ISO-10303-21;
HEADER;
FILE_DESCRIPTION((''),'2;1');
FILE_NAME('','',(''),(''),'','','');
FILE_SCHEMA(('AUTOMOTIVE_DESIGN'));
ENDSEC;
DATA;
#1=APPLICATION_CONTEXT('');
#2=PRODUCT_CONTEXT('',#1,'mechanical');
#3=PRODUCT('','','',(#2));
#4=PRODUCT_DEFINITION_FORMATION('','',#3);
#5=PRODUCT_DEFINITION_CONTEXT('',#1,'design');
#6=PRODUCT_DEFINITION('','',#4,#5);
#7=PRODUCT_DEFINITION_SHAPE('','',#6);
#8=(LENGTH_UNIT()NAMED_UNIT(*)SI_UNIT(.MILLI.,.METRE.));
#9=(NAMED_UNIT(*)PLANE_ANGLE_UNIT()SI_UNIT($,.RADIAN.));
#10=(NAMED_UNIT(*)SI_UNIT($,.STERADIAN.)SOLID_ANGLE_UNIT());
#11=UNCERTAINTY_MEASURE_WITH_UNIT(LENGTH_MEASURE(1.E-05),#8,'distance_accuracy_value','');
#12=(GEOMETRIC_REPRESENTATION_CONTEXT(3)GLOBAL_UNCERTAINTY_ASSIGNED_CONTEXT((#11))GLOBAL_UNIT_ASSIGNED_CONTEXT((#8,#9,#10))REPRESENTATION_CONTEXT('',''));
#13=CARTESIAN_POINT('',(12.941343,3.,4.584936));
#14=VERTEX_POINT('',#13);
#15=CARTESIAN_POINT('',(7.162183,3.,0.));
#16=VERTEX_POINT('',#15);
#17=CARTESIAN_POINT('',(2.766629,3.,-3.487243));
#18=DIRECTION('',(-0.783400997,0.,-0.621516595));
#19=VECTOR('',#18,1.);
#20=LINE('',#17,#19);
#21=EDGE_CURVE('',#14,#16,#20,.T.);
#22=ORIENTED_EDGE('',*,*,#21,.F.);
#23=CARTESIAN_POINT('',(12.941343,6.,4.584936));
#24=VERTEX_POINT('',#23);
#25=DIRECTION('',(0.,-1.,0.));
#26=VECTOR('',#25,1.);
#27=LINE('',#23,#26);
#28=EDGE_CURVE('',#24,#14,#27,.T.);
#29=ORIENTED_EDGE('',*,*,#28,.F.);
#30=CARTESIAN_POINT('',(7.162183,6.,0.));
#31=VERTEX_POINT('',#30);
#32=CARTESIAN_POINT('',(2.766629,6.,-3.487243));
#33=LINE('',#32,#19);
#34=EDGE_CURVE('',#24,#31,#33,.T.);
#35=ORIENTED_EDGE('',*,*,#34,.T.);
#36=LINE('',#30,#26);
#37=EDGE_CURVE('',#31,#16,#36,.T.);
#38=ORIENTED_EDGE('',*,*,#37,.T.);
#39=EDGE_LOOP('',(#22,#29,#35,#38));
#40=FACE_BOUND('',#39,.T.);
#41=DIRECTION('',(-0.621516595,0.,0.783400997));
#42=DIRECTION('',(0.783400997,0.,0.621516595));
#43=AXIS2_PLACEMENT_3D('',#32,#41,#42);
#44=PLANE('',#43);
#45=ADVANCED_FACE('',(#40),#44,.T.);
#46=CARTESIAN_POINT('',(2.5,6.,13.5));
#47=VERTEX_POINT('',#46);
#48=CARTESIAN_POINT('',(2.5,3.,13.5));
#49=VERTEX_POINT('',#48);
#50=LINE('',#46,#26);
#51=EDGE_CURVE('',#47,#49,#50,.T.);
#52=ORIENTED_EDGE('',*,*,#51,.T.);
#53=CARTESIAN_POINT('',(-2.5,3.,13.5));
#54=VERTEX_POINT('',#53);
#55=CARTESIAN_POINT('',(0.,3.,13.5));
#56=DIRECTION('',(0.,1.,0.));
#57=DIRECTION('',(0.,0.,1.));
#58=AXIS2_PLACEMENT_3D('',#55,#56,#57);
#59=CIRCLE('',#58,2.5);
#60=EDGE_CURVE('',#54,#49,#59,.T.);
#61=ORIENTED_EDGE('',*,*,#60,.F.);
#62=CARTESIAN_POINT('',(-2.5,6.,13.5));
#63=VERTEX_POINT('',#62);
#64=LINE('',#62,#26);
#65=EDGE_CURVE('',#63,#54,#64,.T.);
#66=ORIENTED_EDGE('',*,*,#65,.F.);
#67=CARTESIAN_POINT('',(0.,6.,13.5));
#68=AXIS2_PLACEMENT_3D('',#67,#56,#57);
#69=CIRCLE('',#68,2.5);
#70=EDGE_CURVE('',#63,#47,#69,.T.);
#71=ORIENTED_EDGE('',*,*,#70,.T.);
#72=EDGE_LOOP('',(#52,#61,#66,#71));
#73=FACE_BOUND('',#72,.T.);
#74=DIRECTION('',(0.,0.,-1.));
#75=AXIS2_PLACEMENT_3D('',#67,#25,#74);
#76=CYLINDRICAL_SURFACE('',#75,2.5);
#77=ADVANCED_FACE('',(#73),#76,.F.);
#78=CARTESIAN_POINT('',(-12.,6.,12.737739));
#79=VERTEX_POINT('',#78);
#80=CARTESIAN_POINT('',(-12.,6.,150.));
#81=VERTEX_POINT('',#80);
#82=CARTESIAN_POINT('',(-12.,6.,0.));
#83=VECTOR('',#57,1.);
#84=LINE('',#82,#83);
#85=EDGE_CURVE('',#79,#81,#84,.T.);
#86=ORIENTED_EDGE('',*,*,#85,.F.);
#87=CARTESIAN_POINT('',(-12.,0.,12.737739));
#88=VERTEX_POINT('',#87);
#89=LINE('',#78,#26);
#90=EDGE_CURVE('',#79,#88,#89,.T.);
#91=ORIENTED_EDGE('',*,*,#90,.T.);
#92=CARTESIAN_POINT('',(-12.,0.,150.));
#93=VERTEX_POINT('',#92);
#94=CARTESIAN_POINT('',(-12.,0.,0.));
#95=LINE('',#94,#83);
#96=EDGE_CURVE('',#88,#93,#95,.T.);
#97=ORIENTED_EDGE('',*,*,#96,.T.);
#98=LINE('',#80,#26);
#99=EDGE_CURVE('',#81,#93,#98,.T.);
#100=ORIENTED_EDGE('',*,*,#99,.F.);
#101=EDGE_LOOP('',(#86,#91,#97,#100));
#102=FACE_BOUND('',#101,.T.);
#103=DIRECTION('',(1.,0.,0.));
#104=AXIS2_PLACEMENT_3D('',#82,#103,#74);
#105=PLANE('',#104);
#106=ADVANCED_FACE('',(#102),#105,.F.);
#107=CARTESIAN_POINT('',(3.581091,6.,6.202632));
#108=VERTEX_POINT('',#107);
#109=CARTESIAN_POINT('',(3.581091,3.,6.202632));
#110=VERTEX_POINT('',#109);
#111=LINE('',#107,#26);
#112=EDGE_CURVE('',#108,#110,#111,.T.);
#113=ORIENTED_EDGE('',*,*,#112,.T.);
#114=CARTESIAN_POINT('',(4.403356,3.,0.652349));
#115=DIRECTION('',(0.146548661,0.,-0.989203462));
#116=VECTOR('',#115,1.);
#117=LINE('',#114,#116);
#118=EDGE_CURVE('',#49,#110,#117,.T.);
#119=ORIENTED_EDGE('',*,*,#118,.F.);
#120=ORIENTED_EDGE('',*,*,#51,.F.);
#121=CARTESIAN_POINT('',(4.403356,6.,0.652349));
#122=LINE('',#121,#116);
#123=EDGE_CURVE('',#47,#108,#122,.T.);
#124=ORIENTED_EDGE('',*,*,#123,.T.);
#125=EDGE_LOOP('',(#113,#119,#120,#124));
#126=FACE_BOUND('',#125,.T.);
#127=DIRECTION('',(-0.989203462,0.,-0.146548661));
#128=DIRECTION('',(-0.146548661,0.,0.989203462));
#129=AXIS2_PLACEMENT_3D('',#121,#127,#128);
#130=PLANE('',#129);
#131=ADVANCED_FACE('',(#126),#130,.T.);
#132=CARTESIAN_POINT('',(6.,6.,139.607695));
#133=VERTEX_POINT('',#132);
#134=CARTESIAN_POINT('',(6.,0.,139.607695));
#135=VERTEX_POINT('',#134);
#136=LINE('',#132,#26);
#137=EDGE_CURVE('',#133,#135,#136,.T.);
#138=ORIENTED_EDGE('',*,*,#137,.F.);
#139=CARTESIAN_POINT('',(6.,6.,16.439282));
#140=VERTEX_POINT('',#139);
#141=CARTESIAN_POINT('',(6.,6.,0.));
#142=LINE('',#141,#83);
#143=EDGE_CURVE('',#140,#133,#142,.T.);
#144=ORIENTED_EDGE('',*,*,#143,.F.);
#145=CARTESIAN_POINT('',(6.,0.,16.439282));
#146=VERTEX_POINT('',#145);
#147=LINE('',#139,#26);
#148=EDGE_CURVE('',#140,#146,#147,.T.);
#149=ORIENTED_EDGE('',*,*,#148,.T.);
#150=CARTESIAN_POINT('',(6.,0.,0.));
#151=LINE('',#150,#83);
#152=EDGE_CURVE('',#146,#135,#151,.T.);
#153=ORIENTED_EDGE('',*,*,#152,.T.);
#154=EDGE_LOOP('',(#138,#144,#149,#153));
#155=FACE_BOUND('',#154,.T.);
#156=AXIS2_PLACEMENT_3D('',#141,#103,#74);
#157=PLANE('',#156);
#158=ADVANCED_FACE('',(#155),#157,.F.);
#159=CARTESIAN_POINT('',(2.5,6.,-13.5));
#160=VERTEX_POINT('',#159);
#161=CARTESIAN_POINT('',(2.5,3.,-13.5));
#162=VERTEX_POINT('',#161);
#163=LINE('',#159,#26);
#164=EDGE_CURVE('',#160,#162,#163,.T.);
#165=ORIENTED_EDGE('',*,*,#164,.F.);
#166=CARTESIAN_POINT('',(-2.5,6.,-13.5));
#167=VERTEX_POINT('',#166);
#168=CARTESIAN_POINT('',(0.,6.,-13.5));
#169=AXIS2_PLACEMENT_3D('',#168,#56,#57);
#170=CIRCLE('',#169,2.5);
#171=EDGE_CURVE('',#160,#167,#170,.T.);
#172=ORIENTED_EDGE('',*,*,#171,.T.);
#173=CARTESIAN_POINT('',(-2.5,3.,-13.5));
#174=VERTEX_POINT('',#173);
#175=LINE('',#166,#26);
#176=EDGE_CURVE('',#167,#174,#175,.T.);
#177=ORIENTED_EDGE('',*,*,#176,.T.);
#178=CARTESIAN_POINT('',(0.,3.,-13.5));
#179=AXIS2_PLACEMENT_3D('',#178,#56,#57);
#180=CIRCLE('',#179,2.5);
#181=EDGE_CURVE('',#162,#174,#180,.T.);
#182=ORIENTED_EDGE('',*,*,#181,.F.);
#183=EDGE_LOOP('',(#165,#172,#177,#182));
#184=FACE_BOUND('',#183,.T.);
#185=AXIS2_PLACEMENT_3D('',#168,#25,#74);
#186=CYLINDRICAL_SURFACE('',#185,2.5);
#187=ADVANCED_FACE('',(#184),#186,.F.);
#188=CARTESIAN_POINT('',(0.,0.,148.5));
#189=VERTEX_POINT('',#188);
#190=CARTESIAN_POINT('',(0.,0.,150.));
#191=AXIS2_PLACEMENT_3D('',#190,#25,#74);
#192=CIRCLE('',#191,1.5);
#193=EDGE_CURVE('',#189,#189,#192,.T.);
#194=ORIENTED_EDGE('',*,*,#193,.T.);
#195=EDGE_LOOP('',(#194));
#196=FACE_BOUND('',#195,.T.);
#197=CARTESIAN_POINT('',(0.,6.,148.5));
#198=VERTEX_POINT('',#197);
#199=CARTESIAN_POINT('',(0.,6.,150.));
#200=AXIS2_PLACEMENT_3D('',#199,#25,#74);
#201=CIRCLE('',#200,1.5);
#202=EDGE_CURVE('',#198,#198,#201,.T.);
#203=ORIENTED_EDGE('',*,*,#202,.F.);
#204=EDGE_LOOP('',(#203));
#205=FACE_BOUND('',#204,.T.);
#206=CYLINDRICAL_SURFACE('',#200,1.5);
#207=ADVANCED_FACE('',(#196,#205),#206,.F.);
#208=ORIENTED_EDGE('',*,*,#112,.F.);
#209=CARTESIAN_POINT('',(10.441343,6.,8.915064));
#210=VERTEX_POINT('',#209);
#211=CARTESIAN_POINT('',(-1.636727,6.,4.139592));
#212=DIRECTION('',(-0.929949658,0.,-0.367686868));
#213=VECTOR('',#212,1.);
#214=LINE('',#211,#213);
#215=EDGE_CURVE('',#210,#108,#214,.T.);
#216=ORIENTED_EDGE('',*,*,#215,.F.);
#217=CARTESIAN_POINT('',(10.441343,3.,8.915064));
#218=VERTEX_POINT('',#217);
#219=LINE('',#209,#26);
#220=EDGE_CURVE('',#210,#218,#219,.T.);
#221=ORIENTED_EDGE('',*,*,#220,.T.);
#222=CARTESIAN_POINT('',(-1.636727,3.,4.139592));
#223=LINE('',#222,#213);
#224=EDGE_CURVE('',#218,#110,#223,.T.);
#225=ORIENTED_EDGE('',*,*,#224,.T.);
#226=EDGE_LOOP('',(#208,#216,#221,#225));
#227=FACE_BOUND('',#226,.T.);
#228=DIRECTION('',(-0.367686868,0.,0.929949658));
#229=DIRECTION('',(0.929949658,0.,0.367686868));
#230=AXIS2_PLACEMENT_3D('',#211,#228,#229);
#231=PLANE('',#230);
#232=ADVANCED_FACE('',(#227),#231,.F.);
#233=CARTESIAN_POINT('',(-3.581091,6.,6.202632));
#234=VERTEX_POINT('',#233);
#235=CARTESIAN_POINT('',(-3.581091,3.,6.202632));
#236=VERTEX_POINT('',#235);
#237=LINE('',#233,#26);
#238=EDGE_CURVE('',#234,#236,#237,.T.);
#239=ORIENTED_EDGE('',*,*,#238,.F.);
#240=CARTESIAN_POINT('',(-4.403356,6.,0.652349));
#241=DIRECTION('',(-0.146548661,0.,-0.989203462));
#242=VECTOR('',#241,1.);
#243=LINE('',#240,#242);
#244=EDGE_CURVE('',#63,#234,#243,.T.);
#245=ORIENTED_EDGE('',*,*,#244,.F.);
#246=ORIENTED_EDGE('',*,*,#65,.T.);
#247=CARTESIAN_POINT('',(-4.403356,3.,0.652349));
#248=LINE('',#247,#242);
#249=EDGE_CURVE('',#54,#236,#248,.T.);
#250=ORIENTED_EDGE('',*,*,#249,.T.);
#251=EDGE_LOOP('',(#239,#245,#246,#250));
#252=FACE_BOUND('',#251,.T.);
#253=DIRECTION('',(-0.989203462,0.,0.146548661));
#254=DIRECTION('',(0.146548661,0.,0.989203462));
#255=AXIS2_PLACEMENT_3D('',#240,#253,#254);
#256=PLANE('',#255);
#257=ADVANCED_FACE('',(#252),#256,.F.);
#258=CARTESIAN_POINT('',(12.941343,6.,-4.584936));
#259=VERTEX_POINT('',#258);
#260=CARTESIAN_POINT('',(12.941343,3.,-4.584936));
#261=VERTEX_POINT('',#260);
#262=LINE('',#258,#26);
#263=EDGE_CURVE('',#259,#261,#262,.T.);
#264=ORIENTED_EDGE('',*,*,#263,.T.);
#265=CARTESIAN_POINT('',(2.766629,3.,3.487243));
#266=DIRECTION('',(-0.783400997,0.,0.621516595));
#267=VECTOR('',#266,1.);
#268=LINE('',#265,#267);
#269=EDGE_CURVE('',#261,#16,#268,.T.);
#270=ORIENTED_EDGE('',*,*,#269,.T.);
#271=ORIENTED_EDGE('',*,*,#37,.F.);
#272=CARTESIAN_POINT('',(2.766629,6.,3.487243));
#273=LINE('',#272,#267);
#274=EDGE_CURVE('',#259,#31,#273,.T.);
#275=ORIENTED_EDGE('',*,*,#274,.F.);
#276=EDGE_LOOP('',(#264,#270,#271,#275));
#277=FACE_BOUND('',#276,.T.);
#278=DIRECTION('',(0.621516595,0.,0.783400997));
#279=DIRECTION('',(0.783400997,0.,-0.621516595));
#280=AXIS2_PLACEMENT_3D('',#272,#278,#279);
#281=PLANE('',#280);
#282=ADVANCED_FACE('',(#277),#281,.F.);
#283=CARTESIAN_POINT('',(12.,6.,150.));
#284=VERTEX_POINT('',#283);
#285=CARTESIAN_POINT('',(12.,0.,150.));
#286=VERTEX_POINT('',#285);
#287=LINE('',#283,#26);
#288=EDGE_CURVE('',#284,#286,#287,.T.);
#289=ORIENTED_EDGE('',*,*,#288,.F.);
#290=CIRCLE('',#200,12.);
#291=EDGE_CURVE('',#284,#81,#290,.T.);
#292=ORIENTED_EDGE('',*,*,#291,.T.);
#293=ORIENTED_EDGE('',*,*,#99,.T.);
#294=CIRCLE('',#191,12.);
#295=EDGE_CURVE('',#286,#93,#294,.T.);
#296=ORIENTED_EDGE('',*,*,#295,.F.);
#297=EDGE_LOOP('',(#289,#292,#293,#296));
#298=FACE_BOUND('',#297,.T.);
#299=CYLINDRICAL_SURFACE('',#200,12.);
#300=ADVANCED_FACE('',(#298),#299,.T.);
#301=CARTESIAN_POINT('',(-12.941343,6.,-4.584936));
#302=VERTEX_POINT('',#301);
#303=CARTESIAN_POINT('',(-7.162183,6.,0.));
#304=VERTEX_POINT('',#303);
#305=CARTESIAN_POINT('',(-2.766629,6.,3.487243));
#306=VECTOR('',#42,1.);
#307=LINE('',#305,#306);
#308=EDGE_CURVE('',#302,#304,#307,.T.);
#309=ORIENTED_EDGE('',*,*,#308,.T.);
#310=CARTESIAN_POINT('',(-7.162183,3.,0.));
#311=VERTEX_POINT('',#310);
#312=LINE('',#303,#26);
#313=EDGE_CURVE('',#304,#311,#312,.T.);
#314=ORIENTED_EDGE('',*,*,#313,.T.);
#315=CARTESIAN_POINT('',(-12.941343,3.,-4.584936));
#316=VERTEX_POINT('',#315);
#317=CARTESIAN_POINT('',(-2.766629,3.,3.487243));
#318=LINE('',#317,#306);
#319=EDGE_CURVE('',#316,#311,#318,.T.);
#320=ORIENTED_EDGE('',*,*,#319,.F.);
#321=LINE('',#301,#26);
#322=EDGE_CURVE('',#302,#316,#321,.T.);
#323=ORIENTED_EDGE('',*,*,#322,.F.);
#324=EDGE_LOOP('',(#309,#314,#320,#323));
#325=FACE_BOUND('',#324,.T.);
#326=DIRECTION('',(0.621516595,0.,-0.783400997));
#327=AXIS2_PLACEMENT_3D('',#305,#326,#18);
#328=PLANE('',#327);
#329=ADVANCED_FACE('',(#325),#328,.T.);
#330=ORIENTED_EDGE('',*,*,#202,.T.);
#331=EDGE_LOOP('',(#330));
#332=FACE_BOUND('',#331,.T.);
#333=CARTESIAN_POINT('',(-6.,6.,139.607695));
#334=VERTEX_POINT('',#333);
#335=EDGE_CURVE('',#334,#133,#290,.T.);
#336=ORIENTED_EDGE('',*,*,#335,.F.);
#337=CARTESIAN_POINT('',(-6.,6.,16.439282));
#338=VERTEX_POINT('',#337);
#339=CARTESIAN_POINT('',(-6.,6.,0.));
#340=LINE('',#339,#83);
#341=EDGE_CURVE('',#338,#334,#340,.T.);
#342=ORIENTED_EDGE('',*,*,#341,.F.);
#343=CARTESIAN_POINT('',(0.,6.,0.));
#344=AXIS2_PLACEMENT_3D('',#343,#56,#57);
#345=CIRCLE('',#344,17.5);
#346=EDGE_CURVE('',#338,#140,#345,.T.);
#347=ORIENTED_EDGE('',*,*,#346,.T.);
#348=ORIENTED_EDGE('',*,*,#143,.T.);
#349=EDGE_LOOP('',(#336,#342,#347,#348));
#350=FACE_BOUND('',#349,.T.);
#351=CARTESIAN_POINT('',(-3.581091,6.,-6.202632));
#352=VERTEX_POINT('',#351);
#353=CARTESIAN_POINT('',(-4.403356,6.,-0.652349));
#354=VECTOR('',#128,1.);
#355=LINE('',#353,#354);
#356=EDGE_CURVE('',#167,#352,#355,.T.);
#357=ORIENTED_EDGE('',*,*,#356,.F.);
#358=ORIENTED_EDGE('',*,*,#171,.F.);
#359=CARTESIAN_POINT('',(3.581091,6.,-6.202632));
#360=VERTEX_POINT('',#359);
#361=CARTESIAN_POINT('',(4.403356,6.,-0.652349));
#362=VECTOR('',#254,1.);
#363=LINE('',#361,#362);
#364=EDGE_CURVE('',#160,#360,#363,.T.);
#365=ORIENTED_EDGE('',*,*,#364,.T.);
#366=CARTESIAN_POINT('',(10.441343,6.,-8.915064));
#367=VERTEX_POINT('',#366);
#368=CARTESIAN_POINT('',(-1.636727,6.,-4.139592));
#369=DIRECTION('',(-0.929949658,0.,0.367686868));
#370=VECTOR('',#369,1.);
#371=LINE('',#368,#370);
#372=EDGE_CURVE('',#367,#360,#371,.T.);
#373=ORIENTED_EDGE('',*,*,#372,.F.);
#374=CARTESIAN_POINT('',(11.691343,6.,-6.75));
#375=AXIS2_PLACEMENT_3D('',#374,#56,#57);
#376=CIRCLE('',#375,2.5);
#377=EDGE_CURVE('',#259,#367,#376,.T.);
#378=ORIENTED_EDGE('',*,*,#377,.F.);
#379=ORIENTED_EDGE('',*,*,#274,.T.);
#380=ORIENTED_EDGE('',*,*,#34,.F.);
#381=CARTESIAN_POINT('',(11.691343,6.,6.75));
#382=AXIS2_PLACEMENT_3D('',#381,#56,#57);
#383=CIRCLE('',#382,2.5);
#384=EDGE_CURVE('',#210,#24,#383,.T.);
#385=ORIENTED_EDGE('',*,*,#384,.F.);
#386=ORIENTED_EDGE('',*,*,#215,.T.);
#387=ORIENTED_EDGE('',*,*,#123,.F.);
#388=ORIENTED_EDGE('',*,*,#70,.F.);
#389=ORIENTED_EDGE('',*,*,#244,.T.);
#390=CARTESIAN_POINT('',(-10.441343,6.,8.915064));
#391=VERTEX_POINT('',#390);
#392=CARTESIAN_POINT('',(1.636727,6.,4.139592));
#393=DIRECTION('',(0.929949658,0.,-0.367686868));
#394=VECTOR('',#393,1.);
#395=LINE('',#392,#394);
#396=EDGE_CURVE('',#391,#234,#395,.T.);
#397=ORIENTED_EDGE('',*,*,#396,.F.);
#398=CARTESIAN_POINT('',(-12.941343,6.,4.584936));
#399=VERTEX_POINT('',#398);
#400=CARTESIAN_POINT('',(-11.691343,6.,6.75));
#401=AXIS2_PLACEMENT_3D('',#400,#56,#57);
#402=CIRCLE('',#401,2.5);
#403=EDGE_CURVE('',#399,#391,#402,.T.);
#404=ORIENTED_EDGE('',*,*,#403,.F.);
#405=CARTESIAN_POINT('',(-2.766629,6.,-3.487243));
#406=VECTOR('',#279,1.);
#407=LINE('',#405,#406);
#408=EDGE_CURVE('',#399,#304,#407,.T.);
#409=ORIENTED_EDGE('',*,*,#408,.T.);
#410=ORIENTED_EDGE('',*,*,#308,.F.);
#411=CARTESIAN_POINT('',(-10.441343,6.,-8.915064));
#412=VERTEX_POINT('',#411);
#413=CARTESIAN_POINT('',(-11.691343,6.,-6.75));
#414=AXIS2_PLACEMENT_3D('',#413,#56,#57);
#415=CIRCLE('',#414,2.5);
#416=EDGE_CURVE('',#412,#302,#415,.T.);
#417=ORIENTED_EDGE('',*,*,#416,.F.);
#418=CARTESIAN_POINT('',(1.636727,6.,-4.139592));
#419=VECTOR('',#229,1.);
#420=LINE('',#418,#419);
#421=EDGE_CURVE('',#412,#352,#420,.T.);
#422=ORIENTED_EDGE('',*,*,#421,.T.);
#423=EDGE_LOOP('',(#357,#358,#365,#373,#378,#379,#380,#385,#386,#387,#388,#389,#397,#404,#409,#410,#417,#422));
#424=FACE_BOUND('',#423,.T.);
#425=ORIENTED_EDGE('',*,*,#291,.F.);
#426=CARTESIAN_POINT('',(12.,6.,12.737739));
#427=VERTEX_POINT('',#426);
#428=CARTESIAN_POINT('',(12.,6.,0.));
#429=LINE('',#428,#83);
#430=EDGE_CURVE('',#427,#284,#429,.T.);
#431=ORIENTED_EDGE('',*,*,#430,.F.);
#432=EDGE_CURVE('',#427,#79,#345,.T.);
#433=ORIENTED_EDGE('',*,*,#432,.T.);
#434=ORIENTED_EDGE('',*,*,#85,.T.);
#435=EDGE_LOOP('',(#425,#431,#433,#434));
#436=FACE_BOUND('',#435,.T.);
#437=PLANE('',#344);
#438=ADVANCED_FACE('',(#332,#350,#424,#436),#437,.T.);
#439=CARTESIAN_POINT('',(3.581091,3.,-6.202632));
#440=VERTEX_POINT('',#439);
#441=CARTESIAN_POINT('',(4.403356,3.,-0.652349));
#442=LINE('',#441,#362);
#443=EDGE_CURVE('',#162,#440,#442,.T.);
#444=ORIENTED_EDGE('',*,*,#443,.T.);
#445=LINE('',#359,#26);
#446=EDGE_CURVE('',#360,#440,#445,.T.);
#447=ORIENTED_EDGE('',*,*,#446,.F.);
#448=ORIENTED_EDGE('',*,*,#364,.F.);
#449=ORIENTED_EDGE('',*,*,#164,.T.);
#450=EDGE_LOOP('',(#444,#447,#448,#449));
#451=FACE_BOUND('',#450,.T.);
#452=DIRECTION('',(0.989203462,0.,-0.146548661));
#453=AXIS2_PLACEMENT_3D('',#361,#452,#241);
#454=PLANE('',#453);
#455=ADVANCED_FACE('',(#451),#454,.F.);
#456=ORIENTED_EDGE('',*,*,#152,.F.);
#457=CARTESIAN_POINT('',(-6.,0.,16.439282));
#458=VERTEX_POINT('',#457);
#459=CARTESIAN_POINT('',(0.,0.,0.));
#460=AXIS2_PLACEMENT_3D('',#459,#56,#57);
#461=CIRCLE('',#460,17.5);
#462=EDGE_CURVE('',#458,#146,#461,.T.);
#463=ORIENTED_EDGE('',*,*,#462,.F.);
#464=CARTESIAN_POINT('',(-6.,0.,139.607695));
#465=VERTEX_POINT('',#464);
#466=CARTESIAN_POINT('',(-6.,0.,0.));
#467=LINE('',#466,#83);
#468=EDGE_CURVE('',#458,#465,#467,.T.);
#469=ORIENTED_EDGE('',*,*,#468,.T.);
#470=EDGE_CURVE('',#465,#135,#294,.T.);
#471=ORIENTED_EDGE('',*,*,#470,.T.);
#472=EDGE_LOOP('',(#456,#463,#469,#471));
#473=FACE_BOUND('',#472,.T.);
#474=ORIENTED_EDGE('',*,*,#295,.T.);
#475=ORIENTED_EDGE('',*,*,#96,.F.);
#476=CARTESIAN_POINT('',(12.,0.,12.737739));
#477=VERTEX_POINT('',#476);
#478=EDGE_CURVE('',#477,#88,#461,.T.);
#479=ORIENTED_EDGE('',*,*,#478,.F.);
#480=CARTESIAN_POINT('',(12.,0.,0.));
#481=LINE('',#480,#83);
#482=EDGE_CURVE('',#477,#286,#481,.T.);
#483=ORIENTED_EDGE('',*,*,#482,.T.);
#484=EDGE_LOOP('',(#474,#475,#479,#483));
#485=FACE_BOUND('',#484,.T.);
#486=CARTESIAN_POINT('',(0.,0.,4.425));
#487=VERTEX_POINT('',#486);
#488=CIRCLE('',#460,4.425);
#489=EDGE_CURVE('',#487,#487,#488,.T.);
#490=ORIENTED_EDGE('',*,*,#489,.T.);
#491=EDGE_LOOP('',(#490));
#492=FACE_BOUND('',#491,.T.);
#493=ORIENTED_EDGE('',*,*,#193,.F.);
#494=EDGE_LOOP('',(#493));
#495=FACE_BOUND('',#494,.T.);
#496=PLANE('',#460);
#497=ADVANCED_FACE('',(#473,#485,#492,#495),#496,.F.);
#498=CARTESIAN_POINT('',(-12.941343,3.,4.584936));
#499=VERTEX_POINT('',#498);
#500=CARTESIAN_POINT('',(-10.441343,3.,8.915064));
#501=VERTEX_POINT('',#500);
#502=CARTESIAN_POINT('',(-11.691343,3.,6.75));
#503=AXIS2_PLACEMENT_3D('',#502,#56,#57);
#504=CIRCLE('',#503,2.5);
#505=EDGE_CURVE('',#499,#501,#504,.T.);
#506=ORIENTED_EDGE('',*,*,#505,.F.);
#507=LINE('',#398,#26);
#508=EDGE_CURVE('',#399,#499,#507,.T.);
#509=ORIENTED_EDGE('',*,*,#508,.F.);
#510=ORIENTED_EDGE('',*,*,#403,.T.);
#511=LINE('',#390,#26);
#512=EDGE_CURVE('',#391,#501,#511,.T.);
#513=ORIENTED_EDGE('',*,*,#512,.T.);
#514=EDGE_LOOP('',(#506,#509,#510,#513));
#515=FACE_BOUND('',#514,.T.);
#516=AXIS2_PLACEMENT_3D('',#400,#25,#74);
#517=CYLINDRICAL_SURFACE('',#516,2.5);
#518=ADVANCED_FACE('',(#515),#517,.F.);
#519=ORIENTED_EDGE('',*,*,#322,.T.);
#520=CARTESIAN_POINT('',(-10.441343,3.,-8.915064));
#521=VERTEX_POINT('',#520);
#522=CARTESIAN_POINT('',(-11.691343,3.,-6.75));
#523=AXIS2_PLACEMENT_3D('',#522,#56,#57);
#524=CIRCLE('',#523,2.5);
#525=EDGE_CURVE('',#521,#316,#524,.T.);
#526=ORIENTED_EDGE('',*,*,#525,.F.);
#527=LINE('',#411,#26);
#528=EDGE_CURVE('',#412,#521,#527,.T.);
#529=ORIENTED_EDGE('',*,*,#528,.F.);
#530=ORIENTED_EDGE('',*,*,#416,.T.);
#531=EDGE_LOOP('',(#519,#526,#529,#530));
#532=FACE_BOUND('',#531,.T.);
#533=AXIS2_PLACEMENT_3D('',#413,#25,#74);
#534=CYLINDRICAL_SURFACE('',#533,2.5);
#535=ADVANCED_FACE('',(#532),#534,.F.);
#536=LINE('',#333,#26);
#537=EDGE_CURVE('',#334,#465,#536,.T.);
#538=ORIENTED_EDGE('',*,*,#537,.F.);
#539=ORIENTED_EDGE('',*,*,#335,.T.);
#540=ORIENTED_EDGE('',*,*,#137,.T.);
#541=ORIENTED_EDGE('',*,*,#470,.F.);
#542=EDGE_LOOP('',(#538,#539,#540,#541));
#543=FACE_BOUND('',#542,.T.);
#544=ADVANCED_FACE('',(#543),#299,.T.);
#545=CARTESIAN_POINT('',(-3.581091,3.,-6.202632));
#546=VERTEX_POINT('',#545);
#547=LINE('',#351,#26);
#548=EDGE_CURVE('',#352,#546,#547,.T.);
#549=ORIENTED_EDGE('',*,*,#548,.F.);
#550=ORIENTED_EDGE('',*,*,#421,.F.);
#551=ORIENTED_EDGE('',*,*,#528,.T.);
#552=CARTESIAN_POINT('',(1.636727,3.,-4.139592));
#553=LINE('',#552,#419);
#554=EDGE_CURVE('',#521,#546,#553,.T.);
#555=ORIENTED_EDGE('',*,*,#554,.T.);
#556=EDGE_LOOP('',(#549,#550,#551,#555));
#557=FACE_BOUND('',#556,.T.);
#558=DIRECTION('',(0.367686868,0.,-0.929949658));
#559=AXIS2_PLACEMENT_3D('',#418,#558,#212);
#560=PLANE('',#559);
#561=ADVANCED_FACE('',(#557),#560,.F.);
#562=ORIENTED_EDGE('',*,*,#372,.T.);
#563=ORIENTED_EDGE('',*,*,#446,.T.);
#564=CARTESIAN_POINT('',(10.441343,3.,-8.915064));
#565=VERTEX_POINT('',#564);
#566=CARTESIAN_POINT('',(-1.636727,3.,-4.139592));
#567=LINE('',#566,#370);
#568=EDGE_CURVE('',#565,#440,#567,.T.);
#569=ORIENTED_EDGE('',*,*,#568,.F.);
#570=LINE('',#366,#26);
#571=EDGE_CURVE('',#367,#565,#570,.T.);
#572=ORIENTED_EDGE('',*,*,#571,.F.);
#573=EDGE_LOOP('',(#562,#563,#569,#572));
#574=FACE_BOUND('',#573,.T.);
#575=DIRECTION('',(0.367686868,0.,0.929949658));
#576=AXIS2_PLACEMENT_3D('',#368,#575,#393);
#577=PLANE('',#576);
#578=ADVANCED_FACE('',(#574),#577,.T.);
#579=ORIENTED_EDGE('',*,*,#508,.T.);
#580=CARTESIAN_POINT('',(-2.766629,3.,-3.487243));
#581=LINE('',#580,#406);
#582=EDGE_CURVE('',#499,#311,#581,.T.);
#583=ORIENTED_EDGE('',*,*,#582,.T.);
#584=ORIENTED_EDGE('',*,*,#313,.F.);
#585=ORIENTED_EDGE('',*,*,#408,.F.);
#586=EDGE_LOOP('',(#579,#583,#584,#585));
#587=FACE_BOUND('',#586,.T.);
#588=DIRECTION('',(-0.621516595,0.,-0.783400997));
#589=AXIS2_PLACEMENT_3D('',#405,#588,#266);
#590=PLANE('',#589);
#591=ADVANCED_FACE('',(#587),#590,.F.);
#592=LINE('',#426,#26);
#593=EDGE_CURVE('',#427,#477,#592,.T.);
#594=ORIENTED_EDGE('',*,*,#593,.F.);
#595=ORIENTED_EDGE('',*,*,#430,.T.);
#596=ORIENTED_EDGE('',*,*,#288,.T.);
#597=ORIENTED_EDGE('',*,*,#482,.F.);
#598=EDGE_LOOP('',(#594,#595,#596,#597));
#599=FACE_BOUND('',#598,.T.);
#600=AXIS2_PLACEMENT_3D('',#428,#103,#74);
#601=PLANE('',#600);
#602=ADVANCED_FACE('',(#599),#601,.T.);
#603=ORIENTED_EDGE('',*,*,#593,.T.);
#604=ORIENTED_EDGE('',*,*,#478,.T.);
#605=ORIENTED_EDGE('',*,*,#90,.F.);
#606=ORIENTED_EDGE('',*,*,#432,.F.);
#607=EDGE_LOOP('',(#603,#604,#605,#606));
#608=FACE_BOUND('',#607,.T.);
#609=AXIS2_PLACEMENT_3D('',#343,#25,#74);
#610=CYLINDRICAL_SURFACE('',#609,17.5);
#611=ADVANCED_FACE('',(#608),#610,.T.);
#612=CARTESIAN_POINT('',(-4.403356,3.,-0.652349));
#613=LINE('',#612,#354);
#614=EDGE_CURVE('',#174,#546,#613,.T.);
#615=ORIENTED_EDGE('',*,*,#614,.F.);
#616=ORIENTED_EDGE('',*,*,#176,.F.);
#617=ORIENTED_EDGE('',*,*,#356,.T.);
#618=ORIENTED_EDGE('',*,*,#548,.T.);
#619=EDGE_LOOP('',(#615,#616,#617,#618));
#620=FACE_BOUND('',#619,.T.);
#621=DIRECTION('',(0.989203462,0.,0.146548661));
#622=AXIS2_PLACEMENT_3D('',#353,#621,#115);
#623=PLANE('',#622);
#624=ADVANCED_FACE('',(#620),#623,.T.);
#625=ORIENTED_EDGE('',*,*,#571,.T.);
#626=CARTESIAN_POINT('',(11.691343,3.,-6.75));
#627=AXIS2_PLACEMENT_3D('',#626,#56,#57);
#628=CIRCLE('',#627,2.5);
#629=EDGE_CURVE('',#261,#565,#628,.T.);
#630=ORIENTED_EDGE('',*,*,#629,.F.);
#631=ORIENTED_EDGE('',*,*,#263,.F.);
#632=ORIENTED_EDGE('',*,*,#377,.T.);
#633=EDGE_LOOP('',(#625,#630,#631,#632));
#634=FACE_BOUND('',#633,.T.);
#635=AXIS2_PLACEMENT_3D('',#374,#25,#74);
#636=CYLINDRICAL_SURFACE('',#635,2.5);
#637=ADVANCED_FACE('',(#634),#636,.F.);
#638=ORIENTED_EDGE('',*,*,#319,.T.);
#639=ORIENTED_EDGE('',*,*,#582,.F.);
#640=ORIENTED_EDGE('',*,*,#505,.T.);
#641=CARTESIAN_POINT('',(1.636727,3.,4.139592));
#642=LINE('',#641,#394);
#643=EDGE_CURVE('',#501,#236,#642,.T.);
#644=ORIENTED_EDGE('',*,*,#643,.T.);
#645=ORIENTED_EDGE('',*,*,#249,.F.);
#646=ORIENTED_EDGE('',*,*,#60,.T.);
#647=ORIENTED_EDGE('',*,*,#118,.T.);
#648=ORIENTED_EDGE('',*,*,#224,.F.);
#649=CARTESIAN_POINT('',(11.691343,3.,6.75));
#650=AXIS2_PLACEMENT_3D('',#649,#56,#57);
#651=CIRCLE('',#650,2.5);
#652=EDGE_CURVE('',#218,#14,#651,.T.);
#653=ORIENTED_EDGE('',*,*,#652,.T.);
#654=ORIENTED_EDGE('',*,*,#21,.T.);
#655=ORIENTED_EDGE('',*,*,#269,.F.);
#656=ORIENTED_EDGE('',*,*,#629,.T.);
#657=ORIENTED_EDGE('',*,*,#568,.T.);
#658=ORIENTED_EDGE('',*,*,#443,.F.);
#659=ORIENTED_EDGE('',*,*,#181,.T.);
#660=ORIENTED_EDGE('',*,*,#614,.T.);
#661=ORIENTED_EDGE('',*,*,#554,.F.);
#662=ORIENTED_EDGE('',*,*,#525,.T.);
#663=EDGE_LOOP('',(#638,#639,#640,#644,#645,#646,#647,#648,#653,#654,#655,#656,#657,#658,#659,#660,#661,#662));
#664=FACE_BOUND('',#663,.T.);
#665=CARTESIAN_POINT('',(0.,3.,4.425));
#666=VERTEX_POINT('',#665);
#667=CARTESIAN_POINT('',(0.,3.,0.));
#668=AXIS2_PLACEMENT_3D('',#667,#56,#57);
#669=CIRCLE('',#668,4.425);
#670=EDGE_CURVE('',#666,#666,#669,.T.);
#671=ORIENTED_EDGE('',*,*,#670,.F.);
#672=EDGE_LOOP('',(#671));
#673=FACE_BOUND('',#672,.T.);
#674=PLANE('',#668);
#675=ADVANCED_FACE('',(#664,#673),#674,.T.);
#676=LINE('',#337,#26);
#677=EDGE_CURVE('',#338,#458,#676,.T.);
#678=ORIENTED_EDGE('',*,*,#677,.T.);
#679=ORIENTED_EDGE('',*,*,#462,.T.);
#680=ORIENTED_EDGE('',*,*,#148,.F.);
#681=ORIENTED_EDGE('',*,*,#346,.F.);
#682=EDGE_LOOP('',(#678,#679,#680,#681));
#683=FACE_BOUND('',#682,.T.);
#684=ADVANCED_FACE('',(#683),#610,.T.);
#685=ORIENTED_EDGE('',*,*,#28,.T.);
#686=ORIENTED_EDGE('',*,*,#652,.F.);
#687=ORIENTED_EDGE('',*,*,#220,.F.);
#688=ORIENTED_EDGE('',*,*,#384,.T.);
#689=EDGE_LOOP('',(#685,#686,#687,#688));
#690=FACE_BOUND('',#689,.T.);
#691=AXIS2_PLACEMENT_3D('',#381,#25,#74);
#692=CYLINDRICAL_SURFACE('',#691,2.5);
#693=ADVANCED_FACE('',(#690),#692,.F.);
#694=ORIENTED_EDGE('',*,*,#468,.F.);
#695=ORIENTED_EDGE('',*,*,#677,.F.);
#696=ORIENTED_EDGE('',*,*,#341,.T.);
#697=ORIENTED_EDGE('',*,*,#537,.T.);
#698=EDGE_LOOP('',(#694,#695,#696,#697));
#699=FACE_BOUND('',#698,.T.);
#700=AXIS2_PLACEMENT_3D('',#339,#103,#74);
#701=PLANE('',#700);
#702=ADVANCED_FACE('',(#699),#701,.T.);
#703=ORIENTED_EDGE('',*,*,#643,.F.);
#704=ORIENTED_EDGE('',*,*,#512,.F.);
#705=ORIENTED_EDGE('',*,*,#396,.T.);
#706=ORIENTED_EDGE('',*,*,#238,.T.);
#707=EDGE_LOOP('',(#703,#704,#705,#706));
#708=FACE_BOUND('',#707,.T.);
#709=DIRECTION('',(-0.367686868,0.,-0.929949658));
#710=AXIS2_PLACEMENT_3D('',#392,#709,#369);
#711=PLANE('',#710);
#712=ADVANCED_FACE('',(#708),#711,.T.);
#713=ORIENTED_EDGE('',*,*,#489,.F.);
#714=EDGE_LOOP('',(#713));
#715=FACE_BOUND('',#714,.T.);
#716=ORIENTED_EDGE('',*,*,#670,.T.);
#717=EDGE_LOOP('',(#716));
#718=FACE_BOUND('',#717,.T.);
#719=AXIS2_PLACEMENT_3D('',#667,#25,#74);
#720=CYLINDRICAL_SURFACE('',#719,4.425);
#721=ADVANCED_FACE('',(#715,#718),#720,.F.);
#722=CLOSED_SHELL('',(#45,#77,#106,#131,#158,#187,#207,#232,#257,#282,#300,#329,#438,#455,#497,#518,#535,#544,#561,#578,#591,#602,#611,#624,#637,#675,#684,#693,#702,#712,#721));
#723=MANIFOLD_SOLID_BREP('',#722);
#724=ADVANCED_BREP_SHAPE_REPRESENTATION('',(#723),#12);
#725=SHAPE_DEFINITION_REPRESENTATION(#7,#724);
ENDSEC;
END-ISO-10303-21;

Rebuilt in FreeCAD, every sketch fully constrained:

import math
import FreeCAD as App
import Part
import Sketcher
from FreeCAD import Vector

doc = App.newDocument("Part")
body = doc.addObject("PartDesign::Body", "Body")

# Sketch on XZ plane
sketch1 = doc.addObject("Sketcher::SketchObject", "Sketch")
body.addObject(sketch1)
sketch1.AttachmentSupport = (doc.XZ_Plane, [""])
sketch1.MapMode = "FlatFace"
sketch1.addGeometry([
    Part.Circle(Vector(0, 0, 0), Vector(0, 0, 1), 17.5),  # 0
    Part.LineSegment(Vector(-3.6, -6.2, 0), Vector(-2.5, -13.5, 0)),  # 1
    Part.ArcOfCircle(Part.Circle(Vector(0, -13.5, 0), Vector(0, 0, 1), 2.5), math.radians(180), math.radians(270)),  # 2
    Part.ArcOfCircle(Part.Circle(Vector(0, -13.5, 0), Vector(0, 0, 1), 2.5), math.radians(-90), math.radians(0)),  # 3
    Part.LineSegment(Vector(2.5, -13.5, 0), Vector(3.6, -6.2, 0)),  # 4
    Part.LineSegment(Vector(3.6, -6.2, 0), Vector(10.4, -8.9, 0)),  # 5
    Part.ArcOfCircle(Part.Circle(Vector(11.7, -6.8, 0), Vector(0, 0, 1), 2.5), math.radians(-120), math.radians(-30)),  # 6
    Part.ArcOfCircle(Part.Circle(Vector(11.7, -6.8, 0), Vector(0, 0, 1), 2.5), math.radians(-30), math.radians(0)),  # 7
    Part.ArcOfCircle(Part.Circle(Vector(11.7, -6.7, 0), Vector(0, 0, 1), 2.5), math.radians(0), math.radians(60)),  # 8
    Part.LineSegment(Vector(12.9, -4.6, 0), Vector(7.2, 0, 0)),  # 9
    Part.LineSegment(Vector(7.2, 0, 0), Vector(12.9, 4.6, 0)),  # 10
    Part.ArcOfCircle(Part.Circle(Vector(11.7, 6.7, 0), Vector(0, 0, 1), 2.5), math.radians(-60), math.radians(0)),  # 11
    Part.ArcOfCircle(Part.Circle(Vector(11.7, 6.8, 0), Vector(0, 0, 1), 2.5), math.radians(0), math.radians(30)),  # 12
    Part.ArcOfCircle(Part.Circle(Vector(11.7, 6.8, 0), Vector(0, 0, 1), 2.5), math.radians(30), math.radians(120)),  # 13
    Part.LineSegment(Vector(10.4, 8.9, 0), Vector(3.6, 6.2, 0)),  # 14
    Part.LineSegment(Vector(3.6, 6.2, 0), Vector(2.5, 13.5, 0)),  # 15
    Part.ArcOfCircle(Part.Circle(Vector(0, 13.5, 0), Vector(0, 0, 1), 2.5), math.radians(0), math.radians(90)),  # 16
    Part.ArcOfCircle(Part.Circle(Vector(0, 13.5, 0), Vector(0, 0, 1), 2.5), math.radians(90), math.radians(180)),  # 17
    Part.LineSegment(Vector(-2.5, 13.5, 0), Vector(-3.6, 6.2, 0)),  # 18
    Part.LineSegment(Vector(-3.6, 6.2, 0), Vector(-10.4, 8.9, 0)),  # 19
    Part.ArcOfCircle(Part.Circle(Vector(-11.7, 6.8, 0), Vector(0, 0, 1), 2.5), math.radians(60), math.radians(150)),  # 20
    Part.ArcOfCircle(Part.Circle(Vector(-11.7, 6.8, 0), Vector(0, 0, 1), 2.5), math.radians(150), math.radians(240)),  # 21
    Part.LineSegment(Vector(-12.9, 4.6, 0), Vector(-7.2, 0, 0)),  # 22
    Part.LineSegment(Vector(-7.2, 0, 0), Vector(-12.9, -4.6, 0)),  # 23
    Part.ArcOfCircle(Part.Circle(Vector(-11.7, -6.8, 0), Vector(0, 0, 1), 2.5), math.radians(120), math.radians(210)),  # 24
    Part.ArcOfCircle(Part.Circle(Vector(-11.7, -6.8, 0), Vector(0, 0, 1), 2.5), math.radians(-150), math.radians(-60)),  # 25
    Part.LineSegment(Vector(-10.4, -8.9, 0), Vector(-3.6, -6.2, 0)),  # 26
], False)
sketch1.addConstraint([
    Sketcher.Constraint("Coincident", 1, 2, 2, 1),
    Sketcher.Constraint("Tangent", 2, 2, 3, 1),
    Sketcher.Constraint("Coincident", 3, 2, 4, 1),
    Sketcher.Constraint("Coincident", 4, 2, 5, 1),
    Sketcher.Constraint("Coincident", 5, 2, 6, 1),
    Sketcher.Constraint("Tangent", 6, 2, 7, 1),
    Sketcher.Constraint("Tangent", 7, 2, 8, 1),
    Sketcher.Constraint("Coincident", 8, 2, 9, 1),
    Sketcher.Constraint("Coincident", 9, 2, 10, 1),
    Sketcher.Constraint("Coincident", 10, 2, 11, 1),
    Sketcher.Constraint("Tangent", 11, 2, 12, 1),
    Sketcher.Constraint("Tangent", 12, 2, 13, 1),
    Sketcher.Constraint("Coincident", 13, 2, 14, 1),
    Sketcher.Constraint("Coincident", 14, 2, 15, 1),
    Sketcher.Constraint("Coincident", 15, 2, 16, 1),
    Sketcher.Constraint("Tangent", 16, 2, 17, 1),
    Sketcher.Constraint("Coincident", 17, 2, 18, 1),
    Sketcher.Constraint("Coincident", 18, 2, 19, 1),
    Sketcher.Constraint("Coincident", 19, 2, 20, 1),
    Sketcher.Constraint("Tangent", 20, 2, 21, 1),
    Sketcher.Constraint("Coincident", 21, 2, 22, 1),
    Sketcher.Constraint("Coincident", 22, 2, 23, 1),
    Sketcher.Constraint("Coincident", 23, 2, 24, 1),
    Sketcher.Constraint("Tangent", 24, 2, 25, 1),
    Sketcher.Constraint("Coincident", 25, 2, 26, 1),
    Sketcher.Constraint("Coincident", 26, 2, 1, 1),
    Sketcher.Constraint("Coincident", 0, 3, -1, 1),
    Sketcher.Constraint("Coincident", 8, 3, 6, 3),
    Sketcher.Constraint("Coincident", 13, 3, 11, 3),
    Sketcher.Constraint("Equal", 2, 3),
    Sketcher.Constraint("Equal", 3, 6),
    Sketcher.Constraint("Equal", 8, 11),
    Sketcher.Constraint("Equal", 13, 16),
    Sketcher.Constraint("Equal", 16, 17),
    Sketcher.Constraint("Equal", 17, 20),
    Sketcher.Constraint("Equal", 20, 21),
    Sketcher.Constraint("Equal", 21, 24),
    Sketcher.Constraint("Equal", 24, 25),
    Sketcher.Constraint("Symmetric", 2, 3, 16, 3, -1, 1),
    Sketcher.Constraint("Symmetric", 6, 3, 20, 3, -1, 1),
    Sketcher.Constraint("Symmetric", 11, 3, 24, 3, -1, 1),
    Sketcher.Constraint("Symmetric", 4, 2, 18, 2, -1, 1),
    Sketcher.Constraint("Symmetric", 9, 2, 22, 2, -1, 1),
    Sketcher.Constraint("Symmetric", 14, 2, 26, 2, -1, 1),
    Sketcher.Constraint("Symmetric", 11, 3, 20, 3, -2),
    Sketcher.Constraint("Symmetric", 1, 2, 3, 2, -2),
    Sketcher.Constraint("Symmetric", 14, 2, 18, 2, -2),
    Sketcher.Constraint("PointOnObject", 2, 2, -2),
    Sketcher.Constraint("PointOnObject", 9, 2, -1),
    Sketcher.Constraint("PointOnObject", 16, 2, -2),
    Sketcher.Constraint("Parallel", 1, 15),
    Sketcher.Constraint("Parallel", 4, 18),
    Sketcher.Constraint("Parallel", 5, 19),
    Sketcher.Constraint("Parallel", 9, 22),
    Sketcher.Constraint("Parallel", 10, 23),
    Sketcher.Constraint("Parallel", 14, 26),
    Sketcher.Constraint("Horizontal", 3, 3, 1, 2),
    Sketcher.Constraint("Horizontal", 25, 3, 7, 2),
    Sketcher.Constraint("Horizontal", 21, 3, 11, 2),
    Sketcher.Constraint("Horizontal", 13, 2, 19, 2),
    Sketcher.Constraint("Horizontal", 12, 2, 20, 2),
    Sketcher.Constraint("Horizontal", 10, 2, 21, 2),
    Sketcher.Constraint("Horizontal", 6, 2, 24, 2),
    Sketcher.Constraint("Vertical", 6, 2, 12, 2),
    Sketcher.Constraint("Equal", 4, 5),
    Sketcher.Constraint("Equal", 5, 9),
    Sketcher.Constraint("Diameter", 0, 35.0),
    Sketcher.Constraint("Radius", 2, 2.5),
    Sketcher.Constraint("DistanceY", 2, 2, -1, 1, 16.0),
    Sketcher.Constraint("DistanceY", 6, 2, -1, 1, 8.0),
    Sketcher.Constraint("DistanceY", 8, 3, 11, 3, 13.5),
    Sketcher.Constraint("DistanceX", 21, 2, 19, 2, 2.5),
    Sketcher.Constraint("DistanceX", 5, 2, 6, 3, 1.25),
    Sketcher.Constraint("DistanceX", -1, 1, 4, 2, 3.581091),
    Sketcher.Constraint("DistanceX", 4, 2, 6, 3, 8.110251),
])
pad1 = doc.addObject("PartDesign::Pad", "Pad")
body.addObject(pad1)
pad1.Profile = sketch1
pad1.Length = 6
pad1.Reversed = True

# Sketch on XZ plane
sketch2 = doc.addObject("Sketcher::SketchObject", "Sketch001")
body.addObject(sketch2)
sketch2.AttachmentSupport = (doc.XZ_Plane, [""])
sketch2.MapMode = "FlatFace"
sketch2.addGeometry([
    Part.LineSegment(Vector(-7.2, 0, 0), Vector(-12.9, 4.6, 0)),  # 0
    Part.ArcOfCircle(Part.Circle(Vector(-11.7, 6.8, 0), Vector(0, 0, 1), 2.5), math.radians(150), math.radians(240)),  # 1
    Part.ArcOfCircle(Part.Circle(Vector(-11.7, 6.8, 0), Vector(0, 0, 1), 2.5), math.radians(60), math.radians(150)),  # 2
    Part.LineSegment(Vector(-10.4, 8.9, 0), Vector(-3.6, 6.2, 0)),  # 3
    Part.LineSegment(Vector(-3.6, 6.2, 0), Vector(-2.5, 13.5, 0)),  # 4
    Part.ArcOfCircle(Part.Circle(Vector(0, 13.5, 0), Vector(0, 0, 1), 2.5), math.radians(90), math.radians(180)),  # 5
    Part.ArcOfCircle(Part.Circle(Vector(0, 13.5, 0), Vector(0, 0, 1), 2.5), math.radians(0), math.radians(90)),  # 6
    Part.LineSegment(Vector(2.5, 13.5, 0), Vector(3.6, 6.2, 0)),  # 7
    Part.LineSegment(Vector(3.6, 6.2, 0), Vector(10.4, 8.9, 0)),  # 8
    Part.ArcOfCircle(Part.Circle(Vector(11.7, 6.8, 0), Vector(0, 0, 1), 2.5), math.radians(30), math.radians(120)),  # 9
    Part.ArcOfCircle(Part.Circle(Vector(11.7, 6.8, 0), Vector(0, 0, 1), 2.5), math.radians(0), math.radians(30)),  # 10
    Part.ArcOfCircle(Part.Circle(Vector(11.7, 6.7, 0), Vector(0, 0, 1), 2.5), math.radians(-60), math.radians(0)),  # 11
    Part.LineSegment(Vector(12.9, 4.6, 0), Vector(7.2, 0, 0)),  # 12
    Part.LineSegment(Vector(7.2, 0, 0), Vector(12.9, -4.6, 0)),  # 13
    Part.ArcOfCircle(Part.Circle(Vector(11.7, -6.7, 0), Vector(0, 0, 1), 2.5), math.radians(0), math.radians(60)),  # 14
    Part.ArcOfCircle(Part.Circle(Vector(11.7, -6.8, 0), Vector(0, 0, 1), 2.5), math.radians(-30), math.radians(0)),  # 15
    Part.ArcOfCircle(Part.Circle(Vector(11.7, -6.8, 0), Vector(0, 0, 1), 2.5), math.radians(-120), math.radians(-30)),  # 16
    Part.LineSegment(Vector(10.4, -8.9, 0), Vector(3.6, -6.2, 0)),  # 17
    Part.LineSegment(Vector(3.6, -6.2, 0), Vector(2.5, -13.5, 0)),  # 18
    Part.ArcOfCircle(Part.Circle(Vector(0, -13.5, 0), Vector(0, 0, 1), 2.5), math.radians(-90), math.radians(0)),  # 19
    Part.ArcOfCircle(Part.Circle(Vector(0, -13.5, 0), Vector(0, 0, 1), 2.5), math.radians(180), math.radians(270)),  # 20
    Part.LineSegment(Vector(-2.5, -13.5, 0), Vector(-3.6, -6.2, 0)),  # 21
    Part.LineSegment(Vector(-3.6, -6.2, 0), Vector(-10.4, -8.9, 0)),  # 22
    Part.ArcOfCircle(Part.Circle(Vector(-11.7, -6.8, 0), Vector(0, 0, 1), 2.5), math.radians(-150), math.radians(-60)),  # 23
    Part.ArcOfCircle(Part.Circle(Vector(-11.7, -6.8, 0), Vector(0, 0, 1), 2.5), math.radians(120), math.radians(210)),  # 24
    Part.LineSegment(Vector(-12.9, -4.6, 0), Vector(-7.2, 0, 0)),  # 25
    Part.ArcOfCircle(Part.Circle(Vector(0, 0, 0), Vector(0, 0, 1), 4.4), math.radians(-30), math.radians(0)),  # 26
    Part.ArcOfCircle(Part.Circle(Vector(0, 0, 0), Vector(0, 0, 1), 4.4), math.radians(0), math.radians(30)),  # 27
    Part.ArcOfCircle(Part.Circle(Vector(0, 0, 0), Vector(0, 0, 1), 4.4), math.radians(30), math.radians(90)),  # 28
    Part.ArcOfCircle(Part.Circle(Vector(0, 0, 0), Vector(0, 0, 1), 4.4), math.radians(90), math.radians(150)),  # 29
    Part.ArcOfCircle(Part.Circle(Vector(0, 0, 0), Vector(0, 0, 1), 4.4), math.radians(150), math.radians(210)),  # 30
    Part.ArcOfCircle(Part.Circle(Vector(0, 0, 0), Vector(0, 0, 1), 4.4), math.radians(-150), math.radians(-90)),  # 31
    Part.ArcOfCircle(Part.Circle(Vector(0, 0, 0), Vector(0, 0, 1), 4.4), math.radians(-90), math.radians(-30)),  # 32
], False)
sketch2.addConstraint([
    Sketcher.Constraint("Coincident", 0, 2, 1, 2),
    Sketcher.Constraint("Tangent", 1, 1, 2, 2),
    Sketcher.Constraint("Coincident", 2, 1, 3, 1),
    Sketcher.Constraint("Coincident", 3, 2, 4, 1),
    Sketcher.Constraint("Coincident", 4, 2, 5, 2),
    Sketcher.Constraint("Tangent", 5, 1, 6, 2),
    Sketcher.Constraint("Coincident", 6, 1, 7, 1),
    Sketcher.Constraint("Coincident", 7, 2, 8, 1),
    Sketcher.Constraint("Coincident", 8, 2, 9, 2),
    Sketcher.Constraint("Tangent", 9, 1, 10, 2),
    Sketcher.Constraint("Tangent", 10, 1, 11, 2),
    Sketcher.Constraint("Coincident", 11, 1, 12, 1),
    Sketcher.Constraint("Coincident", 12, 2, 13, 1),
    Sketcher.Constraint("Coincident", 13, 2, 14, 2),
    Sketcher.Constraint("Tangent", 14, 1, 15, 2),
    Sketcher.Constraint("Tangent", 15, 1, 16, 2),
    Sketcher.Constraint("Coincident", 16, 1, 17, 1),
    Sketcher.Constraint("Coincident", 17, 2, 18, 1),
    Sketcher.Constraint("Coincident", 18, 2, 19, 2),
    Sketcher.Constraint("Tangent", 19, 1, 20, 2),
    Sketcher.Constraint("Coincident", 20, 1, 21, 1),
    Sketcher.Constraint("Coincident", 21, 2, 22, 1),
    Sketcher.Constraint("Coincident", 22, 2, 23, 2),
    Sketcher.Constraint("Tangent", 23, 1, 24, 2),
    Sketcher.Constraint("Coincident", 24, 1, 25, 1),
    Sketcher.Constraint("Coincident", 25, 2, 0, 1),
    Sketcher.Constraint("Tangent", 26, 2, 27, 1),
    Sketcher.Constraint("Tangent", 27, 2, 28, 1),
    Sketcher.Constraint("Tangent", 28, 2, 29, 1),
    Sketcher.Constraint("Tangent", 29, 2, 30, 1),
    Sketcher.Constraint("Tangent", 30, 2, 31, 1),
    Sketcher.Constraint("Tangent", 31, 2, 32, 1),
    Sketcher.Constraint("Tangent", 32, 2, 26, 1),
    Sketcher.Constraint("Coincident", 26, 3, -1, 1),
    Sketcher.Constraint("Coincident", 28, 3, -1, 1),
    Sketcher.Constraint("Coincident", 30, 3, -1, 1),
    Sketcher.Constraint("Coincident", 11, 3, 9, 3),
    Sketcher.Constraint("Coincident", 16, 3, 14, 3),
    Sketcher.Constraint("Equal", 1, 2),
    Sketcher.Constraint("Equal", 2, 5),
    Sketcher.Constraint("Equal", 5, 6),
    Sketcher.Constraint("Equal", 6, 9),
    Sketcher.Constraint("Equal", 11, 14),
    Sketcher.Constraint("Equal", 16, 19),
    Sketcher.Constraint("Equal", 19, 20),
    Sketcher.Constraint("Equal", 20, 23),
    Sketcher.Constraint("Equal", 23, 24),
    Sketcher.Constraint("Symmetric", 1, 3, 14, 3, -1, 1),
    Sketcher.Constraint("Symmetric", 5, 3, 19, 3, -1, 1),
    Sketcher.Constraint("Symmetric", 9, 3, 23, 3, -1, 1),
    Sketcher.Constraint("Symmetric", 3, 2, 17, 2, -1, 1),
    Sketcher.Constraint("Symmetric", 7, 2, 21, 2, -1, 1),
    Sketcher.Constraint("Symmetric", 12, 2, 25, 2, -1, 1),
    Sketcher.Constraint("Symmetric", 1, 3, 9, 3, -2),
    Sketcher.Constraint("Symmetric", 4, 2, 6, 1, -2),
    Sketcher.Constraint("Symmetric", 3, 2, 7, 2, -2),
    Sketcher.Constraint("PointOnObject", 5, 1, -2),
    Sketcher.Constraint("PointOnObject", 12, 2, -1),
    Sketcher.Constraint("PointOnObject", 19, 1, -2),
    Sketcher.Constraint("PointOnObject", 26, 2, -1),
    Sketcher.Constraint("PointOnObject", 28, 2, -2),
    Sketcher.Constraint("PointOnObject", 31, 2, -2),
    Sketcher.Constraint("Parallel", 0, 13),
    Sketcher.Constraint("Parallel", 3, 17),
    Sketcher.Constraint("Parallel", 4, 18),
    Sketcher.Constraint("Parallel", 7, 21),
    Sketcher.Constraint("Parallel", 8, 22),
    Sketcher.Constraint("Parallel", 12, 25),
    Sketcher.Constraint("Horizontal", 6, 3, 4, 2),
    Sketcher.Constraint("Horizontal", 2, 1, 8, 2),
    Sketcher.Constraint("Horizontal", 1, 1, 9, 1),
    Sketcher.Constraint("Horizontal", 11, 3, 10, 1),
    Sketcher.Constraint("Horizontal", 0, 2, 11, 1),
    Sketcher.Constraint("Horizontal", 24, 3, 14, 1),
    Sketcher.Constraint("Horizontal", 15, 1, 23, 1),
    Sketcher.Constraint("Horizontal", 27, 2, 29, 2),
    Sketcher.Constraint("Horizontal", 30, 2, 32, 2),
    Sketcher.Constraint("Vertical", 9, 1, 15, 1),
    Sketcher.Constraint("Vertical", 29, 2, 30, 2),
    Sketcher.Constraint("Equal", 0, 3),
    Sketcher.Constraint("Equal", 3, 4),
    Sketcher.Constraint("Radius", 1, 2.5),
    Sketcher.Constraint("DistanceY", -1, 1, 1, 1, 8.0),
    Sketcher.Constraint("DistanceY", -1, 1, 5, 1, 16.0),
    Sketcher.Constraint("Radius", 26, 4.425),
    Sketcher.Constraint("DistanceY", 14, 3, 11, 3, 13.5),
    Sketcher.Constraint("DistanceX", 0, 2, 2, 1, 2.5),
    Sketcher.Constraint("DistanceX", 0, 2, 1, 3, 1.25),
    Sketcher.Constraint("DistanceY", -1, 1, 27, 2, 2.2125),
    Sketcher.Constraint("DistanceX", 3, 2, -1, 1, 3.581091),
    Sketcher.Constraint("DistanceX", 7, 2, 8, 2, 6.860251),
])
pad2 = doc.addObject("PartDesign::Pad", "Pad001")
body.addObject(pad2)
pad2.Profile = sketch2
pad2.Length = 3
pad2.Reversed = True

# Sketch on XZ plane
sketch3 = doc.addObject("Sketcher::SketchObject", "Sketch002")
body.addObject(sketch3)
sketch3.AttachmentSupport = (doc.XZ_Plane, [""])
sketch3.MapMode = "FlatFace"
sketch3.addGeometry([
    Part.ArcOfCircle(Part.Circle(Vector(0, 0, 0), Vector(0, 0, 1), 17.5), math.radians(47), math.radians(70)),  # 0
    Part.LineSegment(Vector(12, 12.7, 0), Vector(12, 150, 0)),  # 1
    Part.ArcOfCircle(Part.Circle(Vector(0, 150, 0), Vector(0, 0, 1), 12), math.radians(0), math.radians(180)),  # 2
    Part.LineSegment(Vector(-12, 150, 0), Vector(-12, 12.7, 0)),  # 3
    Part.ArcOfCircle(Part.Circle(Vector(0, 0, 0), Vector(0, 0, 1), 17.5), math.radians(110), math.radians(133)),  # 4
    Part.LineSegment(Vector(-6, 16.4, 0), Vector(-6, 139.6, 0)),  # 5
    Part.ArcOfCircle(Part.Circle(Vector(0, 150, 0), Vector(0, 0, 1), 12), math.radians(-120), math.radians(-60)),  # 6
    Part.LineSegment(Vector(6, 139.6, 0), Vector(6, 16.4, 0)),  # 7
    Part.Circle(Vector(0, 150, 0), Vector(0, 0, 1), 1.5),  # 8
], False)
sketch3.addConstraint([
    Sketcher.Constraint("Coincident", 0, 1, 1, 1),
    Sketcher.Constraint("Tangent", 1, 2, 2, 1),
    Sketcher.Constraint("Tangent", 2, 2, 3, 1),
    Sketcher.Constraint("Coincident", 3, 2, 4, 2),
    Sketcher.Constraint("Coincident", 4, 1, 5, 1),
    Sketcher.Constraint("Coincident", 5, 2, 6, 1),
    Sketcher.Constraint("Coincident", 6, 2, 7, 1),
    Sketcher.Constraint("Coincident", 7, 2, 0, 2),
    Sketcher.Constraint("Vertical", 1),
    Sketcher.Constraint("Vertical", 3),
    Sketcher.Constraint("Vertical", 5),
    Sketcher.Constraint("Vertical", 7),
    Sketcher.Constraint("Coincident", 0, 3, -1, 1),
    Sketcher.Constraint("Coincident", 4, 3, -1, 1),
    Sketcher.Constraint("Coincident", 6, 3, 2, 3),
    Sketcher.Constraint("Coincident", 8, 3, 2, 3),
    Sketcher.Constraint("Equal", 0, 4),
    Sketcher.Constraint("Equal", 2, 6),
    Sketcher.Constraint("Symmetric", 5, 2, 6, 2, -2),
    Sketcher.Constraint("Diameter", 8, 3.0),
    Sketcher.Constraint("Radius", 2, 12.0),
    Sketcher.Constraint("Radius", 0, 17.5),
    Sketcher.Constraint("DistanceY", -1, 1, 2, 3, 150.0),
    Sketcher.Constraint("DistanceX", 4, 1, -1, 1, 6.0),
])
pad3 = doc.addObject("PartDesign::Pad", "Pad002")
body.addObject(pad3)
pad3.Profile = sketch3
pad3.Length = 6
pad3.Reversed = True

doc.recompute()
